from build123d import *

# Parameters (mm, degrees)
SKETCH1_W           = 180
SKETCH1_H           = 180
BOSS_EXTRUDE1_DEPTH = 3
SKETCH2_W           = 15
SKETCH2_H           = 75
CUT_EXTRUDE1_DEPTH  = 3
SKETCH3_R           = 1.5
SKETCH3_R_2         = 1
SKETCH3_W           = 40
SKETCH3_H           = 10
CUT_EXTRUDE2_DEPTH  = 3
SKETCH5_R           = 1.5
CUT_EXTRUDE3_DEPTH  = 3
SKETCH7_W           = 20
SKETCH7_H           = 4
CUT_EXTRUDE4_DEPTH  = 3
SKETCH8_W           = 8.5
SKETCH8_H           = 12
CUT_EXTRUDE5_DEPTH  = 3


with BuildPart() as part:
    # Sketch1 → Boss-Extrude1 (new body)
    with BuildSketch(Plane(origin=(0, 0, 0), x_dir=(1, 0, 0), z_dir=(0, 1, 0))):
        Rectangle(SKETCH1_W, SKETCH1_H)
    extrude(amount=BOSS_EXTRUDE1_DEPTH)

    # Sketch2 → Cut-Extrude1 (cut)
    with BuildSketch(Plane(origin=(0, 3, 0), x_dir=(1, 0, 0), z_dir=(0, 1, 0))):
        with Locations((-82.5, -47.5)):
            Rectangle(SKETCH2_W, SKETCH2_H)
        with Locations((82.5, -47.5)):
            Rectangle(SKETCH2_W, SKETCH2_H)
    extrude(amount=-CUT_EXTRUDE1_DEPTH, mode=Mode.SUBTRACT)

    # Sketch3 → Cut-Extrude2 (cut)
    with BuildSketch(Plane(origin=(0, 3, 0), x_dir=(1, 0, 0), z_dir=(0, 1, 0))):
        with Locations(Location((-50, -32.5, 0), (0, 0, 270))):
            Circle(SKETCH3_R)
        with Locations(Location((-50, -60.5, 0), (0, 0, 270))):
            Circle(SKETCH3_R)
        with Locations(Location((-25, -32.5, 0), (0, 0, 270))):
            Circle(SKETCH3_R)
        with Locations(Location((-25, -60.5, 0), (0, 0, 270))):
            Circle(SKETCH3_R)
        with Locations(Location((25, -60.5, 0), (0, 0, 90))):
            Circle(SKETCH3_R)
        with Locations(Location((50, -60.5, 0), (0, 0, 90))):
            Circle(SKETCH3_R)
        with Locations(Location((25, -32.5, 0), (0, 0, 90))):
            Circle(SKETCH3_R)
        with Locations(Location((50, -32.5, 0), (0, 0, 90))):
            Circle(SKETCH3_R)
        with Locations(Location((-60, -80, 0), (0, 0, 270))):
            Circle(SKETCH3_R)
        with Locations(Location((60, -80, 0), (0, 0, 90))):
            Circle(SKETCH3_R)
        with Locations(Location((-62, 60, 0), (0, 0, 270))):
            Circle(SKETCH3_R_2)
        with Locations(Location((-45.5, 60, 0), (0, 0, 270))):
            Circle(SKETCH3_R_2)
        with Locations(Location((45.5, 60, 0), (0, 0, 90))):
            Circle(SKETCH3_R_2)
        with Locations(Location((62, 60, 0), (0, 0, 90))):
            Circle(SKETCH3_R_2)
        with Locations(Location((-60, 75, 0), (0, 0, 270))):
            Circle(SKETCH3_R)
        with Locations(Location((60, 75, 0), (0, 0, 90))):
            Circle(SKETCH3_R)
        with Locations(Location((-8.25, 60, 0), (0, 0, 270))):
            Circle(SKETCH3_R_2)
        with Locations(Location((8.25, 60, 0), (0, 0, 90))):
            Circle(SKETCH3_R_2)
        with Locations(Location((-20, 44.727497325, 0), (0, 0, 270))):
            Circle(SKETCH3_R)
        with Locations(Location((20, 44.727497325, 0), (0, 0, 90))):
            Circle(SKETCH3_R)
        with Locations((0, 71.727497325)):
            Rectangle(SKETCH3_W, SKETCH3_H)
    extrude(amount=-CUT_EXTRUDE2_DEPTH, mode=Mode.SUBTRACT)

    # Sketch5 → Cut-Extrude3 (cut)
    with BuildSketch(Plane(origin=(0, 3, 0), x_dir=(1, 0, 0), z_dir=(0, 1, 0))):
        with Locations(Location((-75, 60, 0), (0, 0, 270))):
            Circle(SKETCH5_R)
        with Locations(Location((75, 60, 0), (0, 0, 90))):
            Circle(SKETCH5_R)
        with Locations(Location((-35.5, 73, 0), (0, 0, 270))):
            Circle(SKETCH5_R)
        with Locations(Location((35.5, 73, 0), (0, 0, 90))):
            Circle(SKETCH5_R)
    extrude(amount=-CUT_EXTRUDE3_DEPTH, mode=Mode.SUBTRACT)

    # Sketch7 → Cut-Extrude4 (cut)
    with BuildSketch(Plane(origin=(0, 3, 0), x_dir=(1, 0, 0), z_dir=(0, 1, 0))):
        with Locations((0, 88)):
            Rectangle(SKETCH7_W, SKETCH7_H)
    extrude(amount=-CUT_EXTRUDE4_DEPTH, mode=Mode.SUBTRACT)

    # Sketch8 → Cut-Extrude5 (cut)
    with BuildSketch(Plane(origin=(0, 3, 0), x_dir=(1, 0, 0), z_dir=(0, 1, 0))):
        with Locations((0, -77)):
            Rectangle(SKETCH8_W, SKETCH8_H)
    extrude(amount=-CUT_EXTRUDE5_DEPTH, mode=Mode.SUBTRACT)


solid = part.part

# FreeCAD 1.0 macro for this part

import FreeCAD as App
import Part
import Sketcher

V = App.Vector


def add_polygon(sketch, points):
    """Adds a closed chain of lines whose ends are joined by coincident constraints."""
    first, n = sketch.GeometryCount, len(points)
    for a, b in zip(points, points[1:] + points[:1]):
        sketch.addGeometry(Part.LineSegment(App.Vector(*a, 0), App.Vector(*b, 0)), False)
    for i in range(n):
        sketch.addConstraint(Sketcher.Constraint("Coincident", first + i, 2, first + (i + 1) % n, 1))

doc = App.newDocument("Part")
body = doc.addObject("PartDesign::Body", "Body")

# Sketch on XZ plane
sketch1 = doc.addObject("Sketcher::SketchObject", "Sketch")
body.addObject(sketch1)
sketch1.AttachmentSupport = (doc.XZ_Plane, [""])
sketch1.MapMode = "FlatFace"
add_polygon(sketch1, [(-90, -90), (-90, 90), (90, 90), (90, -90)])  # lines 0-3
sketch1.addConstraint([
    Sketcher.Constraint("Vertical", 0),
    Sketcher.Constraint("Horizontal", 1),
    Sketcher.Constraint("Vertical", 2),
    Sketcher.Constraint("Horizontal", 3),
    Sketcher.Constraint("Symmetric", 0, 2, 2, 2, -1, 1),
    Sketcher.Constraint("Equal", 3, 0),
    Sketcher.Constraint("DistanceX", 1, 1, 1, 2, 180.0),
])
pad1 = doc.addObject("PartDesign::Pad", "Pad")
body.addObject(pad1)
pad1.Profile = sketch1
pad1.Length = 3
pad1.Reversed = True

# Sketch on XZ plane
sketch2 = doc.addObject("Sketcher::SketchObject", "Sketch001")
body.addObject(sketch2)
sketch2.AttachmentSupport = (doc.XZ_Plane, [""])
sketch2.MapMode = "FlatFace"
sketch2.AttachmentOffset = App.Placement(V(0, 0, -3), App.Rotation())
add_polygon(sketch2, [(-90, 10), (-90, 85), (-75, 85), (-75, 10)])  # lines 0-3
add_polygon(sketch2, [(75, 10), (75, 85), (90, 85), (90, 10)])  # lines 4-7
sketch2.addConstraint([
    Sketcher.Constraint("Vertical", 0),
    Sketcher.Constraint("Horizontal", 1),
    Sketcher.Constraint("Vertical", 2),
    Sketcher.Constraint("Horizontal", 3),
    Sketcher.Constraint("Vertical", 4),
    Sketcher.Constraint("Horizontal", 5),
    Sketcher.Constraint("Vertical", 6),
    Sketcher.Constraint("Horizontal", 7),
    Sketcher.Constraint("Symmetric", 1, 2, 4, 2, -2),
    Sketcher.Constraint("Symmetric", 3, 2, 6, 2, -2),
    Sketcher.Constraint("DistanceX", 1, 1, 1, 2, 15.0),
    Sketcher.Constraint("DistanceY", 0, 1, 0, 2, 75.0),
    Sketcher.Constraint("DistanceX", 0, 2, -1, 1, 90.0),
    Sketcher.Constraint("DistanceY", -1, 1, 0, 2, 85.0),
])
pocket1 = doc.addObject("PartDesign::Pocket", "Pocket")
body.addObject(pocket1)
pocket1.Profile = sketch2
pocket1.Length = 3
pocket1.Reversed = True

# Sketch on XZ plane
sketch3 = doc.addObject("Sketcher::SketchObject", "Sketch002")
body.addObject(sketch3)
sketch3.AttachmentSupport = (doc.XZ_Plane, [""])
sketch3.MapMode = "FlatFace"
sketch3.AttachmentOffset = App.Placement(V(0, 0, -3), App.Rotation())
sketch3.addGeometry(Part.Circle(V(-50, 32.5, 0), V(0, 0, 1), 1.5), False)  # 0
sketch3.addGeometry(Part.Circle(V(-50, 60.5, 0), V(0, 0, 1), 1.5), False)  # 1
sketch3.addGeometry(Part.Circle(V(-25, 32.5, 0), V(0, 0, 1), 1.5), False)  # 2
sketch3.addGeometry(Part.Circle(V(-25, 60.5, 0), V(0, 0, 1), 1.5), False)  # 3
sketch3.addGeometry(Part.Circle(V(25, 60.5, 0), V(0, 0, 1), 1.5), False)  # 4
sketch3.addGeometry(Part.Circle(V(50, 60.5, 0), V(0, 0, 1), 1.5), False)  # 5
sketch3.addGeometry(Part.Circle(V(25, 32.5, 0), V(0, 0, 1), 1.5), False)  # 6
sketch3.addGeometry(Part.Circle(V(50, 32.5, 0), V(0, 0, 1), 1.5), False)  # 7
sketch3.addGeometry(Part.Circle(V(-60, 80, 0), V(0, 0, 1), 1.5), False)  # 8
sketch3.addGeometry(Part.Circle(V(60, 80, 0), V(0, 0, 1), 1.5), False)  # 9
sketch3.addGeometry(Part.Circle(V(-62, -60, 0), V(0, 0, 1), 1), False)  # 10
sketch3.addGeometry(Part.Circle(V(-45.5, -60, 0), V(0, 0, 1), 1), False)  # 11
sketch3.addGeometry(Part.Circle(V(45.5, -60, 0), V(0, 0, 1), 1), False)  # 12
sketch3.addGeometry(Part.Circle(V(62, -60, 0), V(0, 0, 1), 1), False)  # 13
sketch3.addGeometry(Part.Circle(V(-60, -75, 0), V(0, 0, 1), 1.5), False)  # 14
sketch3.addGeometry(Part.Circle(V(60, -75, 0), V(0, 0, 1), 1.5), False)  # 15
sketch3.addGeometry(Part.Circle(V(-8.2, -60, 0), V(0, 0, 1), 1), False)  # 16
sketch3.addGeometry(Part.Circle(V(8.2, -60, 0), V(0, 0, 1), 1), False)  # 17
sketch3.addGeometry(Part.Circle(V(-20, -44.7, 0), V(0, 0, 1), 1.5), False)  # 18
sketch3.addGeometry(Part.Circle(V(20, -44.7, 0), V(0, 0, 1), 1.5), False)  # 19
add_polygon(sketch3, [(-20, -76.7), (-20, -66.7), (20, -66.7), (20, -76.7)])  # lines 20-23
sketch3.addConstraint([
    Sketcher.Constraint("Vertical", 20),
    Sketcher.Constraint("Horizontal", 21),
    Sketcher.Constraint("Vertical", 22),
    Sketcher.Constraint("Horizontal", 23),
    Sketcher.Constraint("Equal", 0, 1),
    Sketcher.Constraint("Equal", 1, 2),
    Sketcher.Constraint("Equal", 2, 3),
    Sketcher.Constraint("Equal", 3, 4),
    Sketcher.Constraint("Equal", 4, 5),
    Sketcher.Constraint("Equal", 5, 6),
    Sketcher.Constraint("Equal", 6, 7),
    Sketcher.Constraint("Equal", 7, 8),
    Sketcher.Constraint("Equal", 8, 9),
    Sketcher.Constraint("Equal", 10, 11),
    Sketcher.Constraint("Equal", 11, 12),
    Sketcher.Constraint("Equal", 12, 13),
    Sketcher.Constraint("Equal", 9, 14),
    Sketcher.Constraint("Equal", 14, 15),
    Sketcher.Constraint("Equal", 13, 16),
    Sketcher.Constraint("Equal", 16, 17),
    Sketcher.Constraint("Equal", 15, 18),
    Sketcher.Constraint("Equal", 18, 19),
    Sketcher.Constraint("Symmetric", 3, 3, 4, 3, -2),
    Sketcher.Constraint("Symmetric", 1, 3, 5, 3, -2),
    Sketcher.Constraint("Symmetric", 2, 3, 6, 3, -2),
    Sketcher.Constraint("Symmetric", 0, 3, 7, 3, -2),
    Sketcher.Constraint("Symmetric", 8, 3, 9, 3, -2),
    Sketcher.Constraint("Symmetric", 11, 3, 12, 3, -2),
    Sketcher.Constraint("Symmetric", 10, 3, 13, 3, -2),
    Sketcher.Constraint("Symmetric", 14, 3, 15, 3, -2),
    Sketcher.Constraint("Symmetric", 16, 3, 17, 3, -2),
    Sketcher.Constraint("Symmetric", 18, 3, 19, 3, -2),
    Sketcher.Constraint("Horizontal", 0, 3, 2, 3),
    Sketcher.Constraint("Horizontal", 1, 3, 3, 3),
    Sketcher.Constraint("Horizontal", 10, 3, 11, 3),
    Sketcher.Constraint("Horizontal", 13, 3, 16, 3),
    Sketcher.Constraint("Vertical", 0, 3, 1, 3),
    Sketcher.Constraint("Vertical", 2, 3, 3, 3),
    Sketcher.Constraint("Vertical", 8, 3, 14, 3),
    Sketcher.Constraint("Vertical", 18, 3, 20, 2),
    Sketcher.Constraint("Vertical", 19, 3, 21, 2),
    Sketcher.Constraint("Diameter", 0, 3.0),
    Sketcher.Constraint("Diameter", 10, 2.0),
    Sketcher.Constraint("DistanceX", 21, 1, 21, 2, 40.0),
    Sketcher.Constraint("DistanceY", 20, 1, 20, 2, 10.0),
    Sketcher.Constraint("DistanceX", 0, 3, -1, 1, 50.0),
    Sketcher.Constraint("DistanceX", 2, 3, -1, 1, 25.0),
    Sketcher.Constraint("DistanceX", 8, 3, -1, 1, 60.0),
    Sketcher.Constraint("DistanceY", -1, 1, 8, 3, 80.0),
    Sketcher.Constraint("DistanceX", 10, 3, -1, 1, 62.0),
    Sketcher.Constraint("DistanceY", 10, 3, -1, 1, 60.0),
    Sketcher.Constraint("DistanceY", 14, 3, -1, 1, 75.0),
    Sketcher.Constraint("DistanceY", 0, 3, 1, 3, 28.0),
    Sketcher.Constraint("DistanceX", 11, 3, 12, 3, 91.0),
    Sketcher.Constraint("DistanceY", 20, 2, 18, 3, 22.0),
    Sketcher.Constraint("DistanceY", -1, 1, 0, 3, 32.5),
    Sketcher.Constraint("DistanceX", 16, 3, 17, 3, 16.5),
    Sketcher.Constraint("DistanceY", 18, 3, -1, 1, 44.727497),
])
pocket2 = doc.addObject("PartDesign::Pocket", "Pocket001")
body.addObject(pocket2)
pocket2.Profile = sketch3
pocket2.Length = 3
pocket2.Reversed = True

# Sketch on XZ plane
sketch4 = doc.addObject("Sketcher::SketchObject", "Sketch003")
body.addObject(sketch4)
sketch4.AttachmentSupport = (doc.XZ_Plane, [""])
sketch4.MapMode = "FlatFace"
sketch4.AttachmentOffset = App.Placement(V(0, 0, -3), App.Rotation())
sketch4.addGeometry([
    Part.Circle(V(-75, -60, 0), V(0, 0, 1), 1.5),
    Part.Circle(V(75, -60, 0), V(0, 0, 1), 1.5),
    Part.Circle(V(-35.5, -73, 0), V(0, 0, 1), 1.5),
    Part.Circle(V(35.5, -73, 0), V(0, 0, 1), 1.5),
], False)
sketch4.addConstraint([
    Sketcher.Constraint("Equal", 0, 1),
    Sketcher.Constraint("Equal", 1, 2),
    Sketcher.Constraint("Equal", 2, 3),
    Sketcher.Constraint("Symmetric", 0, 3, 1, 3, -2),
    Sketcher.Constraint("Symmetric", 2, 3, 3, 3, -2),
    Sketcher.Constraint("Diameter", 0, 3.0),
    Sketcher.Constraint("DistanceX", 0, 3, -1, 1, 75.0),
    Sketcher.Constraint("DistanceY", 0, 3, -1, 1, 60.0),
    Sketcher.Constraint("DistanceY", 2, 3, -1, 1, 73.0),
    Sketcher.Constraint("DistanceX", 2, 3, 3, 3, 71.0),
])
pocket3 = doc.addObject("PartDesign::Pocket", "Pocket002")
body.addObject(pocket3)
pocket3.Profile = sketch4
pocket3.Length = 3
pocket3.Reversed = True

# Sketch on XZ plane
sketch5 = doc.addObject("Sketcher::SketchObject", "Sketch004")
body.addObject(sketch5)
sketch5.AttachmentSupport = (doc.XZ_Plane, [""])
sketch5.MapMode = "FlatFace"
sketch5.AttachmentOffset = App.Placement(V(0, 0, -3), App.Rotation())
add_polygon(sketch5, [(-10, -90), (-10, -86), (10, -86), (10, -90)])  # lines 0-3
sketch5.addConstraint([
    Sketcher.Constraint("Vertical", 0),
    Sketcher.Constraint("Horizontal", 1),
    Sketcher.Constraint("Vertical", 2),
    Sketcher.Constraint("Horizontal", 3),
    Sketcher.Constraint("DistanceX", 1, 1, 1, 2, 20.0),
    Sketcher.Constraint("DistanceY", 0, 1, 0, 2, 4.0),
    Sketcher.Constraint("DistanceX", 0, 2, -1, 1, 10.0),
    Sketcher.Constraint("DistanceY", 0, 2, -1, 1, 86.0),
])
pocket4 = doc.addObject("PartDesign::Pocket", "Pocket003")
body.addObject(pocket4)
pocket4.Profile = sketch5
pocket4.Length = 3
pocket4.Reversed = True

# Sketch on XZ plane
sketch6 = doc.addObject("Sketcher::SketchObject", "Sketch005")
body.addObject(sketch6)
sketch6.AttachmentSupport = (doc.XZ_Plane, [""])
sketch6.MapMode = "FlatFace"
sketch6.AttachmentOffset = App.Placement(V(0, 0, -3), App.Rotation())
add_polygon(sketch6, [(-4, 71), (-4, 83), (4, 83), (4, 71)])  # lines 0-3
sketch6.addConstraint([
    Sketcher.Constraint("Vertical", 0),
    Sketcher.Constraint("Horizontal", 1),
    Sketcher.Constraint("Vertical", 2),
    Sketcher.Constraint("Horizontal", 3),
    Sketcher.Constraint("DistanceY", 0, 1, 0, 2, 12.0),
    Sketcher.Constraint("DistanceX", 1, 1, 1, 2, 8.5),
    Sketcher.Constraint("DistanceY", -1, 1, 0, 2, 83.0),
    Sketcher.Constraint("DistanceX", 0, 2, -1, 1, 4.25),
])
pocket5 = doc.addObject("PartDesign::Pocket", "Pocket004")
body.addObject(pocket5)
pocket5.Profile = sketch6
pocket5.Length = 3
pocket5.Reversed = True

doc.recompute()
